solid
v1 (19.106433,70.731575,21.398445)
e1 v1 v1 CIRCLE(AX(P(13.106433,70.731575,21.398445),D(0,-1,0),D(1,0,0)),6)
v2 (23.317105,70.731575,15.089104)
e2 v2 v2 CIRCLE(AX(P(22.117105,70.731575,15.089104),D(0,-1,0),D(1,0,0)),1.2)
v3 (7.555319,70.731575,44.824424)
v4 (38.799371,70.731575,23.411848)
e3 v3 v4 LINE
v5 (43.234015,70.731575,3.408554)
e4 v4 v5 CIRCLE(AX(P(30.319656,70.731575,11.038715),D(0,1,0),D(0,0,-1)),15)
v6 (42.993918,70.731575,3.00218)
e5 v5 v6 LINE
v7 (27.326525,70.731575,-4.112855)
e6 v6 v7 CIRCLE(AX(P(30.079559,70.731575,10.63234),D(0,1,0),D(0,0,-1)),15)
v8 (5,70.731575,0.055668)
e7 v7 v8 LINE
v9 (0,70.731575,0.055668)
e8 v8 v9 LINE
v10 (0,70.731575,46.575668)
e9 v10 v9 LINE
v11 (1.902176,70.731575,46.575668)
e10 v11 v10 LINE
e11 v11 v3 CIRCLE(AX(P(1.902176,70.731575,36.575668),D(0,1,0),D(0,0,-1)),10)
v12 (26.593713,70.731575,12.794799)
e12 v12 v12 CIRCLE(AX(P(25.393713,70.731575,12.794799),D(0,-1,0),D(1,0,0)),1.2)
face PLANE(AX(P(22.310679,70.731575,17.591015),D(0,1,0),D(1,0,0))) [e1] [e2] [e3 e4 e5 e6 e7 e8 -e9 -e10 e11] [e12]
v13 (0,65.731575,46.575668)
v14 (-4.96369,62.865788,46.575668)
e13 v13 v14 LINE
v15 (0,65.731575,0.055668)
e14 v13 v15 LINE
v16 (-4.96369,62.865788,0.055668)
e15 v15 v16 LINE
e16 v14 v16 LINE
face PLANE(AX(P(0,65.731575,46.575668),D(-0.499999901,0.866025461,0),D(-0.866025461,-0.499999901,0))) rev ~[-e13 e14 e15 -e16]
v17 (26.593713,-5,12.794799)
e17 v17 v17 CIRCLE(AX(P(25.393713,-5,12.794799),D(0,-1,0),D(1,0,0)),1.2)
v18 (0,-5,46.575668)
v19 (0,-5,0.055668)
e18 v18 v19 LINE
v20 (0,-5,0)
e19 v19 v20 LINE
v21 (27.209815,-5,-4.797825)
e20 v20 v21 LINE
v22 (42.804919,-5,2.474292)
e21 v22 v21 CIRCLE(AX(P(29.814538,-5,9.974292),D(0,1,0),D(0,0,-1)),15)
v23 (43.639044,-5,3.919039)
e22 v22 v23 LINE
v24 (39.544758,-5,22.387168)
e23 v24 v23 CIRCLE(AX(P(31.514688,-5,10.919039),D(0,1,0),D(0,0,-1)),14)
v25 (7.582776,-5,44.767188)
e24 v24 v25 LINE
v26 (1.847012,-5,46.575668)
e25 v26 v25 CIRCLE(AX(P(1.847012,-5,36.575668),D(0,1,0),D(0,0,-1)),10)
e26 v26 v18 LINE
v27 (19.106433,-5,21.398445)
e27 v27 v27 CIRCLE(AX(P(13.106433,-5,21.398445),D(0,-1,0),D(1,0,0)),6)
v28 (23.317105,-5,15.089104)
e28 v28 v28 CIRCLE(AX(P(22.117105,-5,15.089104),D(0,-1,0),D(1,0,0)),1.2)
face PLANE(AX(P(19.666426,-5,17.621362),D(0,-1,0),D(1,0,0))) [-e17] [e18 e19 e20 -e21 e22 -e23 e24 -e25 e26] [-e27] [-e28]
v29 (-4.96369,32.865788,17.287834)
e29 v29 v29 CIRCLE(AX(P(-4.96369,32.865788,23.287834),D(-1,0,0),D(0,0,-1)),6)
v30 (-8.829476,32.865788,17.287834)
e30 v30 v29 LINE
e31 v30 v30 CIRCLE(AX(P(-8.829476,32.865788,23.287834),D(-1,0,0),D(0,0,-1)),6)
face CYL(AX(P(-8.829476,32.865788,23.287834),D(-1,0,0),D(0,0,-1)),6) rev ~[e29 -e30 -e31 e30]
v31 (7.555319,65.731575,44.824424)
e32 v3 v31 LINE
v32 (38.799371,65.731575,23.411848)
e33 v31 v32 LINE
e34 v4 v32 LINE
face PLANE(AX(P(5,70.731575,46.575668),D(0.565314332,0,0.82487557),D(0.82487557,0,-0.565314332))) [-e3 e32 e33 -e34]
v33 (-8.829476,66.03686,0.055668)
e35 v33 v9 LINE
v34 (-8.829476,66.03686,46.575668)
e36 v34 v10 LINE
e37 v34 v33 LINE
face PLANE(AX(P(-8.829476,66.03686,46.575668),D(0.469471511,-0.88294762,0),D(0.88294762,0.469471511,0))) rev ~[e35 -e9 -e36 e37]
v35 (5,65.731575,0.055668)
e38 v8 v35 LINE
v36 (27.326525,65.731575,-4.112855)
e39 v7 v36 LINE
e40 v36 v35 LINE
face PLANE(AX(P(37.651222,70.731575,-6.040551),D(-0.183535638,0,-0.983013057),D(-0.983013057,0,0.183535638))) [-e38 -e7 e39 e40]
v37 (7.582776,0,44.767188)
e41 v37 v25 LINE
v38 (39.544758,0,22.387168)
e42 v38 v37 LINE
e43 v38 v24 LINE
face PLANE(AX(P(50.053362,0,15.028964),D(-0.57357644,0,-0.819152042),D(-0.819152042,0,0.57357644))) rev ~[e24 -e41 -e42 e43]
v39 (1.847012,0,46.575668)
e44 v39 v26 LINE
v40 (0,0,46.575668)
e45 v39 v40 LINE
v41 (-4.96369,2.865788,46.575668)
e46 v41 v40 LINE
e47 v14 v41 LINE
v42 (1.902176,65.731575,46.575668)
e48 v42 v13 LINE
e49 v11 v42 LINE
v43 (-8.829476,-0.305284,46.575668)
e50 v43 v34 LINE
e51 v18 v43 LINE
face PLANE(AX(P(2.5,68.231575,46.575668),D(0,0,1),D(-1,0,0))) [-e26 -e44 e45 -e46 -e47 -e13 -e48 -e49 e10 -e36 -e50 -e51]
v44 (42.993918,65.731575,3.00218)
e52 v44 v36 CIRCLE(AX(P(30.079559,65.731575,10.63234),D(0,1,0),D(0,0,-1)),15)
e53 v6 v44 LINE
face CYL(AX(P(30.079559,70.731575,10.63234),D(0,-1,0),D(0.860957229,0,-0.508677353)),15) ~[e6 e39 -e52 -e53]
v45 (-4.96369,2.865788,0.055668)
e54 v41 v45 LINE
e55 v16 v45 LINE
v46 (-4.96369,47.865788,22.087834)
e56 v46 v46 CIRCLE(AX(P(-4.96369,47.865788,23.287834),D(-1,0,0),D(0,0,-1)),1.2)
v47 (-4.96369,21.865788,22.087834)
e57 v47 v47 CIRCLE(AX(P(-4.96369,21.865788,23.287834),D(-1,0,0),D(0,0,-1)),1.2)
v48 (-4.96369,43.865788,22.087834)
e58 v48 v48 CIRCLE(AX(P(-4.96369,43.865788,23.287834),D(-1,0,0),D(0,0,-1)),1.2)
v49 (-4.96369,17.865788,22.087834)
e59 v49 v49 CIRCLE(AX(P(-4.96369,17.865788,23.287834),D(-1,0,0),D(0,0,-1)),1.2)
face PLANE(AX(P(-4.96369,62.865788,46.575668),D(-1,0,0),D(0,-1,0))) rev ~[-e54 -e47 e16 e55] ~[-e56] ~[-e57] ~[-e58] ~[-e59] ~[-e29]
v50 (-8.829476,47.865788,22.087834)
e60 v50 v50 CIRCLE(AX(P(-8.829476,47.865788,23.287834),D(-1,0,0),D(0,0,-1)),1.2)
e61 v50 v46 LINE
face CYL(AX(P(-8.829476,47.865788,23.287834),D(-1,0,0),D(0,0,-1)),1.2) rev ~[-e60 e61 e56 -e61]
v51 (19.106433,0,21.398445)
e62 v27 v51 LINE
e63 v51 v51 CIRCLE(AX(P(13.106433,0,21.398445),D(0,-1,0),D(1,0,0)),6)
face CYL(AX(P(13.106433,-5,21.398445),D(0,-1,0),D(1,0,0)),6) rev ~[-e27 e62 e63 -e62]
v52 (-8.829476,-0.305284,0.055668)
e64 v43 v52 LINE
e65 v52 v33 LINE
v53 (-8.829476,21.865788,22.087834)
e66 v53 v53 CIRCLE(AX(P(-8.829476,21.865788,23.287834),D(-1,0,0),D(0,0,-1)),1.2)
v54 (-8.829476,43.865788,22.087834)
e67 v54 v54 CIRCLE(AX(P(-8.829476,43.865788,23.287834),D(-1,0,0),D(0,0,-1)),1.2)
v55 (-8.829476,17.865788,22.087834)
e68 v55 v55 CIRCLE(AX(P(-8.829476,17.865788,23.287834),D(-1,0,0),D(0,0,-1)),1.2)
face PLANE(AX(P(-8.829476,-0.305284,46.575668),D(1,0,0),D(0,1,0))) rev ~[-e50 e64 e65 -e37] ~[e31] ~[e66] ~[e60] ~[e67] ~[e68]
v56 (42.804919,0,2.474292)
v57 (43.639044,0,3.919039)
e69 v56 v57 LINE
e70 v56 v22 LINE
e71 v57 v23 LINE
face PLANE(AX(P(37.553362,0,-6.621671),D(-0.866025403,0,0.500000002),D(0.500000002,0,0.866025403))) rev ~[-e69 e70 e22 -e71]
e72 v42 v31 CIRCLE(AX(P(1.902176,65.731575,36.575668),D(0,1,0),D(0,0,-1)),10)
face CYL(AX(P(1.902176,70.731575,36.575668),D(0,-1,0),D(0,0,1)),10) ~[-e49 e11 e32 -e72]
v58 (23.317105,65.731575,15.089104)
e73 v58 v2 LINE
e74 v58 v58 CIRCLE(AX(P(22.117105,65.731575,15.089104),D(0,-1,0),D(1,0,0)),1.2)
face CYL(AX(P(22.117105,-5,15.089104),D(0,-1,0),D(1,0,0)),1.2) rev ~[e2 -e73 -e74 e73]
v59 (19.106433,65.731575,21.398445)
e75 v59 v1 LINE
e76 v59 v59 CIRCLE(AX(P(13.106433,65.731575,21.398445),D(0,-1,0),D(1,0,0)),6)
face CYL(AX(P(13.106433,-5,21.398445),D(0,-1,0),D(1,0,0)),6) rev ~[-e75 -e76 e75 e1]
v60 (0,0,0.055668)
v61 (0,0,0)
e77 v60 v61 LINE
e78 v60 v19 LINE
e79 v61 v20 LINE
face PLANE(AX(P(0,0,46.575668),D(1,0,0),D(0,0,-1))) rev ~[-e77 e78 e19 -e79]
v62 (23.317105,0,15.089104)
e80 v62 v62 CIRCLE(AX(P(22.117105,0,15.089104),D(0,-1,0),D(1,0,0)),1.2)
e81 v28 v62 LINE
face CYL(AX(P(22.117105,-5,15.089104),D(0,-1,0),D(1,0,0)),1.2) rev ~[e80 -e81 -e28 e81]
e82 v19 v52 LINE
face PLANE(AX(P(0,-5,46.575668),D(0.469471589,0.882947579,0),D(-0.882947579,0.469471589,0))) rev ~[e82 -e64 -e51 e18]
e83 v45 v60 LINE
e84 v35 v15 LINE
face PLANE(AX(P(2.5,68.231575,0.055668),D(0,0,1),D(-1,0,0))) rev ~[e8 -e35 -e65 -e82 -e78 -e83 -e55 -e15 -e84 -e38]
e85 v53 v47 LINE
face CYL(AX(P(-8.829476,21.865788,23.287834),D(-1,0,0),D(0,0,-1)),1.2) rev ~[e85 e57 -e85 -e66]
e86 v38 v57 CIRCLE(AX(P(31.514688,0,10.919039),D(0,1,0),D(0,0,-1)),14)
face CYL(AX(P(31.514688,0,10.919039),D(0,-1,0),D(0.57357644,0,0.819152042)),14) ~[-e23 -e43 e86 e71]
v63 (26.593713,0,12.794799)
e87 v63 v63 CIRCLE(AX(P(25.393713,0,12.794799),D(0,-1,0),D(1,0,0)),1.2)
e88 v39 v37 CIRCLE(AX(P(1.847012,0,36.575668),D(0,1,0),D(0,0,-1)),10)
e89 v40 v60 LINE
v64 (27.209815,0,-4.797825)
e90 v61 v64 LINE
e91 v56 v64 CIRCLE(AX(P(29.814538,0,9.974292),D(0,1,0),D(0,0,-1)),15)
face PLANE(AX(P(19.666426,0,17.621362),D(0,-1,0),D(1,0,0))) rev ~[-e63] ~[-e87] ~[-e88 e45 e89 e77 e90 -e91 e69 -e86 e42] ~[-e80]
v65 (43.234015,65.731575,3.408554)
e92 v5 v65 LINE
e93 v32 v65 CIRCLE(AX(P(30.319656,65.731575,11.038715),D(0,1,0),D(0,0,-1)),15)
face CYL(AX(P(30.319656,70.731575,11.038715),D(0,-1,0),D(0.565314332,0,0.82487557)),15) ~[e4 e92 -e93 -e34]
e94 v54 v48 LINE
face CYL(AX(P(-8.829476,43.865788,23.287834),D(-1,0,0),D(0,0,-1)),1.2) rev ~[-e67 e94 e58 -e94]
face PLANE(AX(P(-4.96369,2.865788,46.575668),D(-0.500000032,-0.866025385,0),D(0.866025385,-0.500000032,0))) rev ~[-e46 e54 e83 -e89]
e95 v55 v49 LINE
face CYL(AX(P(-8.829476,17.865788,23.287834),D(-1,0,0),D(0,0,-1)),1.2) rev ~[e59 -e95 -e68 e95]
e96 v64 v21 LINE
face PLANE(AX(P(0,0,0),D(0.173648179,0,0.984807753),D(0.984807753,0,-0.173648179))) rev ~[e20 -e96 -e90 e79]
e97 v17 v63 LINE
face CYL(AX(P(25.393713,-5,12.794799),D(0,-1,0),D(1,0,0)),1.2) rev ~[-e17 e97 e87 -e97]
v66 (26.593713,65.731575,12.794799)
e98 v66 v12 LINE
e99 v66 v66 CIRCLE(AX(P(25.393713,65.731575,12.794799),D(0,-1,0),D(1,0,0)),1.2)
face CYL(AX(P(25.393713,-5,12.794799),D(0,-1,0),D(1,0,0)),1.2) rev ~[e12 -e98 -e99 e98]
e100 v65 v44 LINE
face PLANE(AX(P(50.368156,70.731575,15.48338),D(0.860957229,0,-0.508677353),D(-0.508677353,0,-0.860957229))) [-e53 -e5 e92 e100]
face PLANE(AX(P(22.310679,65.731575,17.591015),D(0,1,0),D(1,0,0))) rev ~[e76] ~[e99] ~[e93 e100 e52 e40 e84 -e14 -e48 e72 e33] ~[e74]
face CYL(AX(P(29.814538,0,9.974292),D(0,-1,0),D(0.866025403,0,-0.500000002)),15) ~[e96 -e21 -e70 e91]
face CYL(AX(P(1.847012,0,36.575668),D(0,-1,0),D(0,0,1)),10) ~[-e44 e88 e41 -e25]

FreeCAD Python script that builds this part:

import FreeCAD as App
import Part
import Sketcher
Q = App.Units.Quantity


def edges_at(feature, points):
    """Names of the edges that pass closest to the given points."""
    edges = feature.Shape.Edges
    near = lambda p: min(range(len(edges)), key=lambda i: edges[i].distToShape(Part.Vertex(*p))[0])
    return sorted({f"Edge{near(p) + 1}" for p in points})

doc = App.newDocument("Part")
body = doc.addObject("PartDesign::Body", "Body")

# Sketch on XZ plane
sketch1 = body.newObject("Sketcher::SketchObject", "Sketch")
sketch1.AttachmentSupport = (doc.getObject("XZ_Plane"), [""])
sketch1.MapMode = "FlatFace"
sketch1.addGeometry([
    Part.LineSegment(App.Vector(0, 0, 0), App.Vector(37.553362, -6.621671, 0)),  # 0
    Part.LineSegment(App.Vector(37.553362, -6.621671, 0), App.Vector(50.053362, 15.028964, 0)),  # 1
    Part.LineSegment(App.Vector(50.053362, 15.028964, 0), App.Vector(5, 46.575668, 0)),  # 2
    Part.LineSegment(App.Vector(5, 46.575668, 0), App.Vector(0, 46.575668, 0)),  # 3
    Part.LineSegment(App.Vector(0, 46.575668, 0), App.Vector(0, 0, 0)),  # 4
], False)
sketch1.addConstraint([
    Sketcher.Constraint("Coincident", 0, 2, 1, 1),
    Sketcher.Constraint("Coincident", 1, 2, 2, 1),
    Sketcher.Constraint("Coincident", 2, 2, 3, 1),
    Sketcher.Constraint("Coincident", 3, 2, 4, 1),
    Sketcher.Constraint("Coincident", 4, 2, 0, 1),
    Sketcher.Constraint("Horizontal", 3),
    Sketcher.Constraint("Vertical", 4),
    Sketcher.Constraint("Coincident", 4, 2, -1, 1),
    Sketcher.Constraint("DistanceX", 3, 2, 3, 1, 5.0),
    Sketcher.Constraint("Angle", 0, Q("-10 deg")),
    Sketcher.Constraint("Angle", 1, Q("60 deg")),
    Sketcher.Constraint("Angle", 2, Q("145 deg")),
    Sketcher.Constraint("Distance", 1, 25.0),
    Sketcher.Constraint("Distance", 2, 55.0),
])
pad1 = body.newObject("PartDesign::Pad", "Pad")
pad1.Profile = sketch1
pad1.Length = 5

# Sketch on XY plane
sketch2 = body.newObject("Sketcher::SketchObject", "Sketch001")
sketch2.AttachmentSupport = (doc.getObject("XY_Plane"), [""])
sketch2.MapMode = "FlatFace"
sketch2.AttachmentOffset = App.Placement(App.Vector(0, 0, 46.575668), App.Rotation())
sketch2.addGeometry([
    Part.LineSegment(App.Vector(-8.829476, -0.305284, 0), App.Vector(0, -5, 0)),  # 0
    Part.LineSegment(App.Vector(0, -5, 0), App.Vector(0, 0, 0)),  # 1
    Part.LineSegment(App.Vector(0, 0, 0), App.Vector(-4.96369, 2.865788, 0)),  # 2
    Part.LineSegment(App.Vector(-4.96369, 2.865788, 0), App.Vector(-4.96369, 62.865788, 0)),  # 3
    Part.LineSegment(App.Vector(-4.96369, 62.865788, 0), App.Vector(0, 65.731575, 0)),  # 4
    Part.LineSegment(App.Vector(0, 65.731575, 0), App.Vector(0, 70.731575, 0)),  # 5
    Part.LineSegment(App.Vector(0, 70.731575, 0), App.Vector(-8.829476, 66.03686, 0)),  # 6
    Part.LineSegment(App.Vector(-8.829476, 66.03686, 0), App.Vector(-8.829476, -0.305284, 0)),  # 7
], False)
sketch2.addConstraint([
    Sketcher.Constraint("Coincident", 0, 2, 1, 1),
    Sketcher.Constraint("Coincident", 1, 2, 2, 1),
    Sketcher.Constraint("Coincident", 2, 2, 3, 1),
    Sketcher.Constraint("Coincident", 3, 2, 4, 1),
    Sketcher.Constraint("Coincident", 4, 2, 5, 1),
    Sketcher.Constraint("Coincident", 5, 2, 6, 1),
    Sketcher.Constraint("Coincident", 6, 2, 7, 1),
    Sketcher.Constraint("Coincident", 7, 2, 0, 1),
    Sketcher.Constraint("Vertical", 1),
    Sketcher.Constraint("Vertical", 3),
    Sketcher.Constraint("Vertical", 5),
    Sketcher.Constraint("Vertical", 7),
    Sketcher.Constraint("Coincident", 1, 2, -1, 1),
    Sketcher.Constraint("PointOnObject", 4, 2, -2),
    Sketcher.Constraint("Equal", 1, 5),
    Sketcher.Constraint("Equal", 2, 4),
    Sketcher.Constraint("Equal", 0, 6),
    Sketcher.Constraint("DistanceY", 1, 1, 1, 2, 5.0),
    Sketcher.Constraint("DistanceY", 3, 1, 3, 2, 60.0),
    Sketcher.Constraint("Angle", 0, Q("-28.000002 deg")),
    Sketcher.Constraint("Angle", 2, Q("149.999998 deg")),
    Sketcher.Constraint("Distance", 0, 10.0),
    Sketcher.Constraint("DistanceY", 7, 2, 7, 1, 66.342144),
])
pad2 = body.newObject("PartDesign::Pad", "Pad001")
pad2.Profile = sketch2
pad2.Length = 46.52
pad2.Reversed = True

# Sketch on XY plane
sketch3 = body.newObject("Sketcher::SketchObject", "Sketch002")
sketch3.AttachmentSupport = (doc.getObject("XY_Plane"), [""])
sketch3.MapMode = "FlatFace"
sketch3.AttachmentOffset = App.Placement(App.Vector(0, 0, 46.575668), App.Rotation())
sketch3.addGeometry([
    Part.LineSegment(App.Vector(5, 65.731575, 0), App.Vector(5, 70.731575, 0)),
    Part.LineSegment(App.Vector(5, 70.731575, 0), App.Vector(0, 70.731575, 0)),
    Part.LineSegment(App.Vector(0, 70.731575, 0), App.Vector(0, 65.731575, 0)),
    Part.LineSegment(App.Vector(0, 65.731575, 0), App.Vector(5, 65.731575, 0)),
], False)
sketch3.addConstraint([
    Sketcher.Constraint("Coincident", 0, 2, 1, 1),
    Sketcher.Constraint("Coincident", 1, 2, 2, 1),
    Sketcher.Constraint("Coincident", 2, 2, 3, 1),
    Sketcher.Constraint("Coincident", 3, 2, 0, 1),
    Sketcher.Constraint("Vertical", 0),
    Sketcher.Constraint("Horizontal", 1),
    Sketcher.Constraint("Vertical", 2),
    Sketcher.Constraint("Horizontal", 3),
    Sketcher.Constraint("PointOnObject", 1, 2, -2),
    Sketcher.Constraint("Equal", 3, 0),
    Sketcher.Constraint("DistanceX", 1, 2, 1, 1, 5.0),
    Sketcher.Constraint("DistanceY", -1, 1, 0, 2, 70.731575),
])
pad3 = body.newObject("PartDesign::Pad", "Pad002")
pad3.Profile = sketch3
pad3.Length = 46.52
pad3.Reversed = True

# Sketch on XZ plane
sketch4 = body.newObject("Sketcher::SketchObject", "Sketch003")
sketch4.AttachmentSupport = (doc.getObject("XZ_Plane"), [""])
sketch4.MapMode = "FlatFace"
sketch4.AttachmentOffset = App.Placement(App.Vector(0, 0, -70.731575), App.Rotation())
sketch4.addGeometry([
    Part.LineSegment(App.Vector(5, 0.055668, 0), App.Vector(5, 46.575668, 0)),
    Part.LineSegment(App.Vector(5, 46.575668, 0), App.Vector(50.368156, 15.48338, 0)),
    Part.LineSegment(App.Vector(50.368156, 15.48338, 0), App.Vector(37.651222, -6.040551, 0)),
    Part.LineSegment(App.Vector(37.651222, -6.040551, 0), App.Vector(5, 0.055668, 0)),
], False)
sketch4.addConstraint([
    Sketcher.Constraint("Coincident", 0, 2, 1, 1),
    Sketcher.Constraint("Coincident", 1, 2, 2, 1),
    Sketcher.Constraint("Coincident", 2, 2, 3, 1),
    Sketcher.Constraint("Coincident", 3, 2, 0, 1),
    Sketcher.Constraint("Vertical", 0),
    Sketcher.Constraint("Distance", 1, 55.0),
    Sketcher.Constraint("Distance", 2, 25.0),
    Sketcher.Constraint("DistanceX", -1, 1, 0, 2, 5.0),
    Sketcher.Constraint("DistanceY", 0, 1, 0, 2, 46.52),
    Sketcher.Constraint("Distance", 3, 33.215451),
    Sketcher.Constraint("DistanceY", -1, 1, 1, 2, 15.48338),
    Sketcher.Constraint("DistanceX", -1, 1, 2, 2, 37.651222),
])
pad4 = body.newObject("PartDesign::Pad", "Pad003")
pad4.Profile = sketch4
pad4.Length = 5

# Sketch on YZ plane
sketch5 = body.newObject("Sketcher::SketchObject", "Sketch004")
sketch5.AttachmentSupport = (doc.getObject("YZ_Plane"), [""])
sketch5.MapMode = "FlatFace"
sketch5.AttachmentOffset = App.Placement(App.Vector(0, 0, -8.829476), App.Rotation())
sketch5.addGeometry([
    Part.Circle(App.Vector(32.865788, 23.287834, 0), App.Vector(0, 0, 1), 6),  # 0
    Part.Circle(App.Vector(21.865788, 23.287834, 0), App.Vector(0, 0, 1), 1.2),  # 1
    Part.Circle(App.Vector(17.865788, 23.287834, 0), App.Vector(0, 0, 1), 1.2),  # 2
    Part.Circle(App.Vector(43.865788, 23.287834, 0), App.Vector(0, 0, 1), 1.2),  # 3
    Part.Circle(App.Vector(47.865788, 23.287834, 0), App.Vector(0, 0, 1), 1.2),  # 4
], False)
sketch5.addConstraint([
    Sketcher.Constraint("Equal", 1, 2),
    Sketcher.Constraint("Equal", 2, 3),
    Sketcher.Constraint("Equal", 3, 4),
    Sketcher.Constraint("Horizontal", 0, 3, 1, 3),
    Sketcher.Constraint("Horizontal", 1, 3, 2, 3),
    Sketcher.Constraint("Horizontal", 2, 3, 3, 3),
    Sketcher.Constraint("Horizontal", 3, 3, 4, 3),
    Sketcher.Constraint("Diameter", 0, 12.0),
    Sketcher.Constraint("Diameter", 1, 2.4),
    Sketcher.Constraint("DistanceX", 1, 3, 0, 3, 11.0),
    Sketcher.Constraint("DistanceX", 2, 3, 1, 3, 4.0),
    Sketcher.Constraint("DistanceX", 0, 3, 3, 3, 11.0),
    Sketcher.Constraint("DistanceX", 3, 3, 4, 3, 4.0),
    Sketcher.Constraint("DistanceX", -1, 1, 0, 3, 32.865788),
    Sketcher.Constraint("DistanceY", -1, 1, 0, 3, 23.287834),
])
pocket1 = body.newObject("PartDesign::Pocket", "Pocket")
pocket1.Profile = sketch5
pocket1.Length = 5
pocket1.Reversed = True

# Sketch on XZ plane
sketch6 = body.newObject("Sketcher::SketchObject", "Sketch005")
sketch6.AttachmentSupport = (doc.getObject("XZ_Plane"), [""])
sketch6.MapMode = "FlatFace"
sketch6.AttachmentOffset = App.Placement(App.Vector(0, 0, 5), App.Rotation())
sketch6.addGeometry([
    Part.Circle(App.Vector(13.106433, 21.398445, 0), App.Vector(0, 0, 1), 6),
    Part.Circle(App.Vector(22.117105, 15.089104, 0), App.Vector(0, 0, 1), 1.2),
    Part.Circle(App.Vector(25.393713, 12.794799, 0), App.Vector(0, 0, 1), 1.2),
], False)
sketch6.addConstraint([
    Sketcher.Constraint("Equal", 1, 2),
    Sketcher.Constraint("Diameter", 0, 12.0),
    Sketcher.Constraint("Diameter", 1, 2.4),
    Sketcher.Constraint("DistanceY", -1, 1, 2, 3, 12.794799),
    Sketcher.Constraint("DistanceX", 0, 3, 1, 3, 9.010672),
    Sketcher.Constraint("DistanceY", 1, 3, 0, 3, 6.309341),
    Sketcher.Constraint("DistanceX", 1, 3, 2, 3, 3.276608),
    Sketcher.Constraint("DistanceX", -1, 1, 0, 3, 13.106433),
    Sketcher.Constraint("DistanceY", -1, 1, 0, 3, 21.398445),
])
pocket2 = body.newObject("PartDesign::Pocket", "Pocket001")
pocket2.Profile = sketch6
pocket2.Type = "ThroughAll"
doc.recompute()

fillet = body.newObject("PartDesign::Fillet", "Fillet")
fillet.Base = (pocket2, edges_at(pocket2, [(50.053, -2.5, 15.029)]))
fillet.Radius = 14
doc.recompute()

fillet2 = body.newObject("PartDesign::Fillet", "Fillet001")
fillet2.Base = (fillet, edges_at(fillet, [(37.553, -2.5, -6.622)]))
fillet2.Radius = 15
doc.recompute()

fillet3 = body.newObject("PartDesign::Fillet", "Fillet002")
fillet3.Base = (fillet2, edges_at(fillet2, [(50.368, 68.232, 15.483)]))
fillet3.Radius = 15
doc.recompute()

fillet4 = body.newObject("PartDesign::Fillet", "Fillet003")
fillet4.Base = (fillet3, edges_at(fillet3, [(37.651, 68.232, -6.041)]))
fillet4.Radius = 15
doc.recompute()

fillet5 = body.newObject("PartDesign::Fillet", "Fillet004")
fillet5.Base = (fillet4, edges_at(fillet4, [(5, -2.5, 46.576)]))
fillet5.Radius = 10
doc.recompute()

fillet6 = body.newObject("PartDesign::Fillet", "Fillet005")
fillet6.Base = (fillet5, edges_at(fillet5, [(5, 68.232, 46.576)]))
fillet6.Radius = 10

doc.recompute()
